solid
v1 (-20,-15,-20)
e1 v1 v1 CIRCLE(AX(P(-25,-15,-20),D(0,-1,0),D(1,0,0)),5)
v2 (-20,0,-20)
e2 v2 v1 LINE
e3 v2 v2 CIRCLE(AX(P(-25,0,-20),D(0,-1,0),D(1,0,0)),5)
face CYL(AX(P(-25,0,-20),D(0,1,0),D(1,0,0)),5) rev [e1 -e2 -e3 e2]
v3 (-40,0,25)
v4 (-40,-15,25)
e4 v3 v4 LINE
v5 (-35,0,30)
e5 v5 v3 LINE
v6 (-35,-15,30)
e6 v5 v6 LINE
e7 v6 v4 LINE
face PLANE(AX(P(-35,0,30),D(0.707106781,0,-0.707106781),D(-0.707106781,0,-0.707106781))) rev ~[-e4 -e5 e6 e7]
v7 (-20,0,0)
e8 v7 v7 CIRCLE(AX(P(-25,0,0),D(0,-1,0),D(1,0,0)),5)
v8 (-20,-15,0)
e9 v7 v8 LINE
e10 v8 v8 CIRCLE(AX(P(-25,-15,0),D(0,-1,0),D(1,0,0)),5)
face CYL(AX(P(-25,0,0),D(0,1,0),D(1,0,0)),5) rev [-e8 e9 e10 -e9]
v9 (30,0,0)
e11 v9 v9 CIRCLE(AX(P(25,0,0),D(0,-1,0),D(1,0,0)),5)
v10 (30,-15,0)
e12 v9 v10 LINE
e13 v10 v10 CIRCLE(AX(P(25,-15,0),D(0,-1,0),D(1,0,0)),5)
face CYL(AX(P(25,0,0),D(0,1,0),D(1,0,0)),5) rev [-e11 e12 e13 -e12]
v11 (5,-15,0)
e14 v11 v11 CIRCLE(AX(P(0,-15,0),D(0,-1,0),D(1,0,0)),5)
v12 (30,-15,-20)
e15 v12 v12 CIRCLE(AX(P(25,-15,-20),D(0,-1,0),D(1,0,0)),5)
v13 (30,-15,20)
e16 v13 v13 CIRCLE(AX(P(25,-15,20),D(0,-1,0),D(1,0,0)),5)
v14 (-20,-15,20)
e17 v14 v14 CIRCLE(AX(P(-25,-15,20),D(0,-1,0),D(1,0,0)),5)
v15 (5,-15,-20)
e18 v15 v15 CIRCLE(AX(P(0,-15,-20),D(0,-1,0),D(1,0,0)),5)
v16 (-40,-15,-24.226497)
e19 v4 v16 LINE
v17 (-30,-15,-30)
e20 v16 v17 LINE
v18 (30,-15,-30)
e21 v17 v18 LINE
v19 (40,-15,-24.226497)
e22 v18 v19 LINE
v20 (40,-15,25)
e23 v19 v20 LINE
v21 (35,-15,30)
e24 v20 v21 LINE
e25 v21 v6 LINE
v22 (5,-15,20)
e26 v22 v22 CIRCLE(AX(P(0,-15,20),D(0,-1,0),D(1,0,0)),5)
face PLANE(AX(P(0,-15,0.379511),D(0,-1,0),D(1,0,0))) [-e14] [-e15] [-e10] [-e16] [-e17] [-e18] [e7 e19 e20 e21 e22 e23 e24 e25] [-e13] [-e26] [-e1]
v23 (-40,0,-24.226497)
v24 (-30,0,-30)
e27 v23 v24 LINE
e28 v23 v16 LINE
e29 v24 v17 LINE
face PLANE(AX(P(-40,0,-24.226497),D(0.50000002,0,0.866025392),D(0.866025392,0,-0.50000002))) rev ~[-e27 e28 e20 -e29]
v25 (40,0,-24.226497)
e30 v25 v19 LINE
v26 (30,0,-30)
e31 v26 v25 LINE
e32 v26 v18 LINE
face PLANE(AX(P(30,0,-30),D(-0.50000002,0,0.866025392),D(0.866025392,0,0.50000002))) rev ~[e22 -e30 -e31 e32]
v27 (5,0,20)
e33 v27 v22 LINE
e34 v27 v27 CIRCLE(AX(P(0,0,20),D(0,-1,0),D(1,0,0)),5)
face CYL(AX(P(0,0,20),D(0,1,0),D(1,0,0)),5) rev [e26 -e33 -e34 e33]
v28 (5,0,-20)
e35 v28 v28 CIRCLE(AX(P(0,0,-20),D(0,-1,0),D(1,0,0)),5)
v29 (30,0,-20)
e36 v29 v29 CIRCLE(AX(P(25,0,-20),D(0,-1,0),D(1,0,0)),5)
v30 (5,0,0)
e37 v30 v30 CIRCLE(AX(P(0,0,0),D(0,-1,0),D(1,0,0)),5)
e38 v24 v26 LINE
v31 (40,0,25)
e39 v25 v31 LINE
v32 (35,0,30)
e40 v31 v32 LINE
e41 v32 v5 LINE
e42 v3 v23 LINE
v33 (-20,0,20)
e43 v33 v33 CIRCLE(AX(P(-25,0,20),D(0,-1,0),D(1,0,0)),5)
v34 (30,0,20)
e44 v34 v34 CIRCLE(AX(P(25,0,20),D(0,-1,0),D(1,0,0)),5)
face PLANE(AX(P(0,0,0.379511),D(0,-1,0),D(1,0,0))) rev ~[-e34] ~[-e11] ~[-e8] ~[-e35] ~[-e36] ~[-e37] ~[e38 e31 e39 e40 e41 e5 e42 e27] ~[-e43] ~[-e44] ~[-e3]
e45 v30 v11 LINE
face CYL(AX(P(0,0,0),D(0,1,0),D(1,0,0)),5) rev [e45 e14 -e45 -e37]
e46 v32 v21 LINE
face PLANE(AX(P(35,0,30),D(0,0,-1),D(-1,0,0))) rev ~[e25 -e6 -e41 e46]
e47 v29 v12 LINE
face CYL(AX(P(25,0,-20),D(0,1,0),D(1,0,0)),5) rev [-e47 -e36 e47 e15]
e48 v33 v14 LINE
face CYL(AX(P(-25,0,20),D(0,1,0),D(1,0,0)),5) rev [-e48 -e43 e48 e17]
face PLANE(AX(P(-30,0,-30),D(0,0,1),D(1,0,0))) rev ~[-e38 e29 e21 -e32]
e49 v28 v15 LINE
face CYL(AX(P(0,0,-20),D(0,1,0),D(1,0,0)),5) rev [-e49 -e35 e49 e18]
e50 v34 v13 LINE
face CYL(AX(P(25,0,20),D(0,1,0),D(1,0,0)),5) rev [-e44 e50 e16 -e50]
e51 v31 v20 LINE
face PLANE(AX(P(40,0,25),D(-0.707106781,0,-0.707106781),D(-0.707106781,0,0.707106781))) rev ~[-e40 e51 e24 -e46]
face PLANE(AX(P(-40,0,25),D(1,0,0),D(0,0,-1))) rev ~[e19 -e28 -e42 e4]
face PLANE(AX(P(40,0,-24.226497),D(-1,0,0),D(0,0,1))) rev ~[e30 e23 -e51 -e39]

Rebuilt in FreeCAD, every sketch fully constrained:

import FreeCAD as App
import Part
import Sketcher
Q = App.Units.Quantity

doc = App.newDocument("Part")
body = doc.addObject("PartDesign::Body", "Body")

# Sketch on XZ plane
sketch1 = body.newObject("Sketcher::SketchObject", "Sketch")
sketch1.AttachmentSupport = (doc.getObject("XZ_Plane"), [""])
sketch1.MapMode = "FlatFace"
sketch1.addGeometry([
    Part.LineSegment(App.Vector(35, 30, 0), App.Vector(-35, 30, 0)),  # 0
    Part.LineSegment(App.Vector(-35, 30, 0), App.Vector(-40, 25, 0)),  # 1
    Part.LineSegment(App.Vector(-40, 25, 0), App.Vector(-40, -24.226497, 0)),  # 2
    Part.LineSegment(App.Vector(-40, -24.226497, 0), App.Vector(-30, -30, 0)),  # 3
    Part.LineSegment(App.Vector(-30, -30, 0), App.Vector(30, -30, 0)),  # 4
    Part.LineSegment(App.Vector(30, -30, 0), App.Vector(40, -24.226497, 0)),  # 5
    Part.LineSegment(App.Vector(40, -24.226497, 0), App.Vector(40, 25, 0)),  # 6
    Part.LineSegment(App.Vector(40, 25, 0), App.Vector(35, 30, 0)),  # 7
    Part.Circle(App.Vector(-25, -20, 0), App.Vector(0, 0, 1), 5),  # 8
    Part.Circle(App.Vector(0, -20, 0), App.Vector(0, 0, 1), 5),  # 9
    Part.Circle(App.Vector(25, -20, 0), App.Vector(0, 0, 1), 5),  # 10
    Part.Circle(App.Vector(-25, 0, 0), App.Vector(0, 0, 1), 5),  # 11
    Part.Circle(App.Vector(-25, 20, 0), App.Vector(0, 0, 1), 5),  # 12
    Part.Circle(App.Vector(0, 0, 0), App.Vector(0, 0, 1), 5),  # 13
    Part.Circle(App.Vector(25, 0, 0), App.Vector(0, 0, 1), 5),  # 14
    Part.Circle(App.Vector(0, 20, 0), App.Vector(0, 0, 1), 5),  # 15
    Part.Circle(App.Vector(25, 20, 0), App.Vector(0, 0, 1), 5),  # 16
], False)
sketch1.addConstraint([
    Sketcher.Constraint("Coincident", 0, 2, 1, 1),
    Sketcher.Constraint("Coincident", 1, 2, 2, 1),
    Sketcher.Constraint("Coincident", 2, 2, 3, 1),
    Sketcher.Constraint("Coincident", 3, 2, 4, 1),
    Sketcher.Constraint("Coincident", 4, 2, 5, 1),
    Sketcher.Constraint("Coincident", 5, 2, 6, 1),
    Sketcher.Constraint("Coincident", 6, 2, 7, 1),
    Sketcher.Constraint("Coincident", 7, 2, 0, 1),
    Sketcher.Constraint("Horizontal", 0),
    Sketcher.Constraint("Vertical", 2),
    Sketcher.Constraint("Horizontal", 4),
    Sketcher.Constraint("Vertical", 6),
    Sketcher.Constraint("Coincident", 13, 3, -1, 1),
    Sketcher.Constraint("Equal", 8, 9),
    Sketcher.Constraint("Equal", 9, 10),
    Sketcher.Constraint("Equal", 10, 11),
    Sketcher.Constraint("Equal", 11, 12),
    Sketcher.Constraint("Equal", 12, 13),
    Sketcher.Constraint("Equal", 13, 14),
    Sketcher.Constraint("Equal", 14, 15),
    Sketcher.Constraint("Equal", 15, 16),
    Sketcher.Constraint("Symmetric", 10, 3, 12, 3, -1, 1),
    Sketcher.Constraint("Symmetric", 11, 3, 14, 3, -1, 1),
    Sketcher.Constraint("Symmetric", 9, 3, 15, 3, -1, 1),
    Sketcher.Constraint("Symmetric", 8, 3, 16, 3, -1, 1),
    Sketcher.Constraint("Symmetric", 8, 3, 10, 3, -2),
    Sketcher.Constraint("Symmetric", 2, 2, 5, 2, -2),
    Sketcher.Constraint("PointOnObject", 9, 3, -2),
    Sketcher.Constraint("PointOnObject", 11, 3, -1),
    Sketcher.Constraint("Perpendicular", 1, 7),
    Sketcher.Constraint("Horizontal", 8, 3, 9, 3),
    Sketcher.Constraint("Horizontal", 1, 2, 6, 2),
    Sketcher.Constraint("Vertical", 8, 3, 11, 3),
    Sketcher.Constraint("Equal", 3, 5),
    Sketcher.Constraint("Equal", 1, 7),
    Sketcher.Constraint("Diameter", 8, Q("10 mm")),
    Sketcher.Constraint("DistanceX", 0, 2, 0, 1, Q("70 mm")),
    Sketcher.Constraint("DistanceX", 4, 1, 4, 2, Q("60 mm")),
    Sketcher.Constraint("Angle", 3, Q("-30.000001 deg")),
    Sketcher.Constraint("DistanceX", 8, 3, -1, 1, Q("25 mm")),
    Sketcher.Constraint("DistanceY", 8, 3, -1, 1, Q("20 mm")),
    Sketcher.Constraint("DistanceY", -1, 1, 0, 2, Q("30 mm")),
    Sketcher.Constraint("DistanceX", 1, 2, -1, 1, Q("40 mm")),
    Sketcher.Constraint("DistanceY", 3, 2, -1, 1, Q("30 mm")),
])
pad1 = body.newObject("PartDesign::Pad", "Pad")
pad1.Profile = sketch1
pad1.Length = 15

doc.recompute()
